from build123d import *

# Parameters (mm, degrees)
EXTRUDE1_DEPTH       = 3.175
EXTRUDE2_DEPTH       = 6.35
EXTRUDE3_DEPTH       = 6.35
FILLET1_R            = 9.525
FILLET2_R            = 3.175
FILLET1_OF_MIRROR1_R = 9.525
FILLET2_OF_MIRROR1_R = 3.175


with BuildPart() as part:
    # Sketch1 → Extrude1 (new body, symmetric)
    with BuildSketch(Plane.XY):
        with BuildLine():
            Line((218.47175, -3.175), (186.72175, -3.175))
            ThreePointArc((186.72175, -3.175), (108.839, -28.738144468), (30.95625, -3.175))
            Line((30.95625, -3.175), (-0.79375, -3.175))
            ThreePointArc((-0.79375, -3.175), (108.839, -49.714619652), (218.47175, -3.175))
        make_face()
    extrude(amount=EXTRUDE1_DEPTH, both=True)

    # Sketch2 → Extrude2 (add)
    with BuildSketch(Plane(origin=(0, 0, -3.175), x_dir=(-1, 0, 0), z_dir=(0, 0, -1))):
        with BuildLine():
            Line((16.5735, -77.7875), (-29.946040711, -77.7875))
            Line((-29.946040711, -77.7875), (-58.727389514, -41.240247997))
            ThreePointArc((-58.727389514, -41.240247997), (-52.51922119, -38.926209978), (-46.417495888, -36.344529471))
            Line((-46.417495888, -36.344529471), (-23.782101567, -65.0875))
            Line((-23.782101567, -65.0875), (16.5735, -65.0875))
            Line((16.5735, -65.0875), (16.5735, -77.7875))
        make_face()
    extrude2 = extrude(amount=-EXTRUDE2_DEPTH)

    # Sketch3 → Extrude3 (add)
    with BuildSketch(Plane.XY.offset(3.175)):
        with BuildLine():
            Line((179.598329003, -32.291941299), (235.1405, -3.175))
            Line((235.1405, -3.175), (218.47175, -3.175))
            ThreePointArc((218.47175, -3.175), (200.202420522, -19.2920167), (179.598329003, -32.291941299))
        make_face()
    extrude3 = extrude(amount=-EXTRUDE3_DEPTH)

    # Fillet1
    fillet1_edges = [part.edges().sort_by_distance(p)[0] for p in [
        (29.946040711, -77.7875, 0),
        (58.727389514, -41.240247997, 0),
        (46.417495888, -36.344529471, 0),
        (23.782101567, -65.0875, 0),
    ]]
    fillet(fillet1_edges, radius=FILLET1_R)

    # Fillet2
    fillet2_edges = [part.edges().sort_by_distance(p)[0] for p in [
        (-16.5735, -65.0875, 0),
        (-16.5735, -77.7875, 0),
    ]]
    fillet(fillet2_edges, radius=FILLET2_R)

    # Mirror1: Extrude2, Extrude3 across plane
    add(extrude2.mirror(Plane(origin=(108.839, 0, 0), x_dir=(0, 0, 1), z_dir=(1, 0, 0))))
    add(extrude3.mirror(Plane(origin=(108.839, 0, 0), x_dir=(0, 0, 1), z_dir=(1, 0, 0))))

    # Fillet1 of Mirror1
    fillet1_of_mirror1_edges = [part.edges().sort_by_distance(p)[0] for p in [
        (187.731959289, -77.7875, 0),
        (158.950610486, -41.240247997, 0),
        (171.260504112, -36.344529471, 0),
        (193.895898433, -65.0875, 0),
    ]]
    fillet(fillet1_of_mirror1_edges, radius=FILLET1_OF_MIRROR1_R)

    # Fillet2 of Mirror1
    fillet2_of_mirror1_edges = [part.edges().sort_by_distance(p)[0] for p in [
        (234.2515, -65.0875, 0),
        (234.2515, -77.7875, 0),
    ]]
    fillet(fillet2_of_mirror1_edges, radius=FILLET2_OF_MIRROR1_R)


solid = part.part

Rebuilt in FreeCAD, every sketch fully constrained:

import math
import FreeCAD as App
import Part
import Sketcher

V = App.Vector
Q = App.Units.Quantity


def edges_at(feature, points):
    """Names of the edges that pass closest to the given points."""
    edges = feature.Shape.Edges
    near = lambda p: min(range(len(edges)), key=lambda i: edges[i].distToShape(Part.Vertex(*p))[0])
    return sorted({f"Edge{near(p) + 1}" for p in points})

doc = App.newDocument("Part")
body = doc.addObject("PartDesign::Body", "Body")

sketch1 = doc.addObject("Sketcher::SketchObject", "Sketch")
body.addObject(sketch1)
sketch1.AttachmentSupport = (doc.XY_Plane, [""])
sketch1.MapMode = "FlatFace"
sketch1.addGeometry(Part.LineSegment(V(218.47175, -3.175, 0), V(186.72175, -3.175, 0)), False)
sketch1.addGeometry(Part.ArcOfCircle(Part.Circle(V(108.839, 102.68538, 0), V(0, 0, 1), 131.423525), math.radians(-126.342363), math.radians(-53.657637)), False)
sketch1.addGeometry(Part.LineSegment(V(30.95625, -3.175, 0), V(-0.79375, -3.175, 0)), False)
sketch1.addGeometry(Part.ArcOfCircle(Part.Circle(V(108.839, 102.68538, 0), V(0, 0, 1), 152.4), math.radians(-136.002903), math.radians(-43.997097)), False)
sketch1.addConstraint(Sketcher.Constraint("Coincident", 0, 2, 1, 2))
sketch1.addConstraint(Sketcher.Constraint("Coincident", 1, 1, 2, 1))
sketch1.addConstraint(Sketcher.Constraint("Coincident", 2, 2, 3, 1))
sketch1.addConstraint(Sketcher.Constraint("Coincident", 3, 2, 0, 1))
sketch1.addConstraint(Sketcher.Constraint("Horizontal", 0))
sketch1.addConstraint(Sketcher.Constraint("Horizontal", 2))
sketch1.addConstraint(Sketcher.Constraint("Coincident", 3, 3, 1, 3))
sketch1.addConstraint(Sketcher.Constraint("Horizontal", 0, 2, 1, 1))
sketch1.addConstraint(Sketcher.Constraint("Radius", 3, Q("6 in")))
sketch1.addConstraint(Sketcher.Constraint("DistanceX", 0, 2, 0, 1, Q("1.25 in")))
sketch1.addConstraint(Sketcher.Constraint("DistanceX", -1, 1, 1, 3, Q("4.285 in")))
sketch1.addConstraint(Sketcher.Constraint("DistanceY", 0, 2, -1, 1, Q("0.125 in")))
sketch1.addConstraint(Sketcher.Constraint("DistanceX", -1, 1, 1, 1, Q("1.21875 in")))
pad1 = doc.addObject("PartDesign::Pad", "Pad")
body.addObject(pad1)
pad1.Profile = sketch1
pad1.Length = Q("0.25 in")
pad1.Midplane = True

sketch2 = doc.addObject("Sketcher::SketchObject", "Sketch001")
body.addObject(sketch2)
sketch2.AttachmentSupport = (doc.XY_Plane, [""])
sketch2.MapMode = "FlatFace"
sketch2.AttachmentOffset = App.Placement(V(0, 0, -0.125 * 25.4), App.Rotation())
sketch2.addGeometry(Part.LineSegment(V(29.946041, -77.7875, 0), V(-16.5735, -77.7875, 0)), False)
sketch2.addGeometry(Part.LineSegment(V(-16.5735, -77.7875, 0), V(-16.5735, -65.0875, 0)), False)
sketch2.addGeometry(Part.LineSegment(V(-16.5735, -65.0875, 0), V(23.782102, -65.0875, 0)), False)
sketch2.addGeometry(Part.LineSegment(V(23.782102, -65.0875, 0), V(46.417496, -36.344529, 0)), False)
sketch2.addGeometry(Part.ArcOfCircle(Part.Circle(V(108.839, 102.685381, 0), V(0, 0, 1), 152.4), math.radians(-114.179077), math.radians(-109.196948)), False)
sketch2.addGeometry(Part.LineSegment(V(58.72739, -41.240248, 0), V(29.946041, -77.7875, 0)), False)
sketch2.addConstraint(Sketcher.Constraint("Coincident", 0, 2, 1, 1))
sketch2.addConstraint(Sketcher.Constraint("Coincident", 1, 2, 2, 1))
sketch2.addConstraint(Sketcher.Constraint("Coincident", 2, 2, 3, 1))
sketch2.addConstraint(Sketcher.Constraint("Coincident", 3, 2, 4, 1))
sketch2.addConstraint(Sketcher.Constraint("Coincident", 4, 2, 5, 1))
sketch2.addConstraint(Sketcher.Constraint("Coincident", 5, 2, 0, 1))
sketch2.addConstraint(Sketcher.Constraint("Horizontal", 0))
sketch2.addConstraint(Sketcher.Constraint("Vertical", 1))
sketch2.addConstraint(Sketcher.Constraint("Horizontal", 2))
sketch2.addConstraint(Sketcher.Constraint("Parallel", 3, 5))
sketch2.addConstraint(Sketcher.Constraint("Radius", 4, Q("6 in")))
sketch2.addConstraint(Sketcher.Constraint("DistanceY", 1, 1, 1, 2, Q("0.5 in")))
sketch2.addConstraint(Sketcher.Constraint("DistanceX", -1, 1, 4, 3, Q("4.285 in")))
sketch2.addConstraint(Sketcher.Constraint("DistanceY", 0, 2, -1, 1, Q("3.0625 in")))
sketch2.addConstraint(Sketcher.Constraint("DistanceX", 0, 2, 4, 3, Q("4.9375 in")))
sketch2.addConstraint(Sketcher.Constraint("DistanceX", 2, 1, 2, 2, 40.355602))
sketch2.addConstraint(Sketcher.Constraint("DistanceX", 0, 2, 0, 1, 46.519541))
sketch2.addConstraint(Sketcher.Constraint("Distance", 3, 36.585782))
sketch2.addConstraint(Sketcher.Constraint("Distance", 5, 46.519541))
pad2 = doc.addObject("PartDesign::Pad", "Pad001")
body.addObject(pad2)
pad2.Profile = sketch2
pad2.Length = Q("0.25 in")

sketch3 = doc.addObject("Sketcher::SketchObject", "Sketch002")
body.addObject(sketch3)
sketch3.AttachmentSupport = (doc.XY_Plane, [""])
sketch3.MapMode = "FlatFace"
sketch3.AttachmentOffset = App.Placement(V(0, 0, 0.125 * 25.4), App.Rotation())
sketch3.addGeometry(Part.LineSegment(V(179.598329, -32.291941, 0), V(235.1405, -3.175, 0)), False)
sketch3.addGeometry(Part.LineSegment(V(235.1405, -3.175, 0), V(218.47175, -3.175, 0)), False)
sketch3.addGeometry(Part.ArcOfCircle(Part.Circle(V(108.839, 102.68538, 0), V(0, 0, 1), 152.4), math.radians(-62.335068), math.radians(-43.997097)), False)
sketch3.addConstraint(Sketcher.Constraint("Coincident", 0, 2, 1, 1))
sketch3.addConstraint(Sketcher.Constraint("Coincident", 1, 2, 2, 2))
sketch3.addConstraint(Sketcher.Constraint("Tangent", 2, 1, 0, 1))
sketch3.addConstraint(Sketcher.Constraint("Horizontal", 1))
sketch3.addConstraint(Sketcher.Constraint("Radius", 2, Q("6 in")))
sketch3.addConstraint(Sketcher.Constraint("DistanceX", 1, 2, 1, 1, Q("0.65625 in")))
sketch3.addConstraint(Sketcher.Constraint("DistanceX", -1, 1, 2, 3, Q("4.285 in")))
sketch3.addConstraint(Sketcher.Constraint("DistanceY", 0, 2, -1, 1, Q("0.125 in")))
sketch3.addConstraint(Sketcher.Constraint("DistanceX", -1, 1, 0, 2, Q("9.2575 in")))
pad3 = doc.addObject("PartDesign::Pad", "Pad002")
body.addObject(pad3)
pad3.Profile = sketch3
pad3.Length = Q("0.25 in")
pad3.Reversed = True
doc.recompute()

fillet = doc.addObject("PartDesign::Fillet", "Fillet")
body.addObject(fillet)
fillet.Base = (pad3, edges_at(pad3, [
    (29.946, -77.787, 0),
    (58.727, -41.24, 0),
    (46.417, -36.345, 0),
    (23.782, -65.088, 0),
]))
fillet.Radius = Q("0.375 in")
doc.recompute()

fillet2 = doc.addObject("PartDesign::Fillet", "Fillet001")
body.addObject(fillet2)
fillet2.Base = (fillet, edges_at(fillet, [(-16.573, -65.088, 0), (-16.573, -77.787, 0)]))
fillet2.Radius = Q("0.125 in")
doc.recompute()

datumplane = doc.addObject("PartDesign::Plane", "DatumPlane")
body.addObject(datumplane)
datumplane.AttachmentSupport = (doc.YZ_Plane, [""])
datumplane.MapMode = "FlatFace"
datumplane.AttachmentOffset = App.Placement(V(0, 0, 4.285 * 25.4), App.Rotation())
mirrored = doc.addObject("PartDesign::Mirrored", "Mirrored")
body.addObject(mirrored)
mirrored.Originals = [pad2, pad3]
mirrored.MirrorPlane = (datumplane, [""])
body.Tip = mirrored
doc.recompute()

fillet3 = doc.addObject("PartDesign::Fillet", "Fillet002")
body.addObject(fillet3)
fillet3.Base = (mirrored, edges_at(mirrored, [
    (187.732, -77.787, 0),
    (158.951, -41.24, 0),
    (171.261, -36.345, 0),
    (193.896, -65.088, 0),
]))
fillet3.Radius = Q("0.375 in")
doc.recompute()

fillet4 = doc.addObject("PartDesign::Fillet", "Fillet003")
body.addObject(fillet4)
fillet4.Base = (fillet3, edges_at(fillet3, [(234.251, -65.088, 0), (234.251, -77.787, 0)]))
fillet4.Radius = Q("0.125 in")

doc.recompute()
